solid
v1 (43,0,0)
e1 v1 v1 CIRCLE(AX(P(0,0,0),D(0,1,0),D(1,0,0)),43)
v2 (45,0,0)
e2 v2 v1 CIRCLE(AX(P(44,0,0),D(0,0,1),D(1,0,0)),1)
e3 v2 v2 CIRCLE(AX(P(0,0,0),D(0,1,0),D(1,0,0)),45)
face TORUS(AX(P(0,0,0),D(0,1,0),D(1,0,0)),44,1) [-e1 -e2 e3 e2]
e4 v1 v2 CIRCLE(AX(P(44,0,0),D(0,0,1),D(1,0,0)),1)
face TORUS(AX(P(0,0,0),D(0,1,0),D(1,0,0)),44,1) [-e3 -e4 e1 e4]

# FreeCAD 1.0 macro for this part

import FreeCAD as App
import Part
import Sketcher

V = App.Vector
Q = App.Units.Quantity

doc = App.newDocument("Part")
params = doc.addObject("Spreadsheet::Sheet", "Params")
for row, (alias, value) in enumerate([
    ("sketch1_diameter", "2 mm"),
    ("revolution_angle", "360 deg"),
], start=1):
    params.set(f"A{row}", alias)
    params.set(f"B{row}", "=" + value)
    params.setAlias(f"B{row}", alias)

body = doc.addObject("PartDesign::Body", "Body")

sketch1 = body.newObject("Sketcher::SketchObject", "Sketch")
sketch1.AttachmentSupport = (doc.getObject("XY_Plane"), [""])
sketch1.MapMode = "FlatFace"
sketch1.addGeometry(Part.Circle(V(44, 0, 0), V(0, 0, 1), 1), False)
sketch1.addConstraint(Sketcher.Constraint("PointOnObject", 0, 3, -1))
sketch1.addConstraint(Sketcher.Constraint("Diameter", 0, Q("2 mm")))
sketch1.addConstraint(Sketcher.Constraint("DistanceX", -1, 1, 0, 3, Q("44 mm")))
sketch1.setExpression("Constraints[1]", "Params.sketch1_diameter")
revolution = body.newObject("PartDesign::Revolution", "Revolution")
revolution.Profile = sketch1
revolution.ReferenceAxis = (sketch1, ["V_Axis"])
revolution.setExpression("Angle", "Params.revolution_angle")

doc.recompute()
